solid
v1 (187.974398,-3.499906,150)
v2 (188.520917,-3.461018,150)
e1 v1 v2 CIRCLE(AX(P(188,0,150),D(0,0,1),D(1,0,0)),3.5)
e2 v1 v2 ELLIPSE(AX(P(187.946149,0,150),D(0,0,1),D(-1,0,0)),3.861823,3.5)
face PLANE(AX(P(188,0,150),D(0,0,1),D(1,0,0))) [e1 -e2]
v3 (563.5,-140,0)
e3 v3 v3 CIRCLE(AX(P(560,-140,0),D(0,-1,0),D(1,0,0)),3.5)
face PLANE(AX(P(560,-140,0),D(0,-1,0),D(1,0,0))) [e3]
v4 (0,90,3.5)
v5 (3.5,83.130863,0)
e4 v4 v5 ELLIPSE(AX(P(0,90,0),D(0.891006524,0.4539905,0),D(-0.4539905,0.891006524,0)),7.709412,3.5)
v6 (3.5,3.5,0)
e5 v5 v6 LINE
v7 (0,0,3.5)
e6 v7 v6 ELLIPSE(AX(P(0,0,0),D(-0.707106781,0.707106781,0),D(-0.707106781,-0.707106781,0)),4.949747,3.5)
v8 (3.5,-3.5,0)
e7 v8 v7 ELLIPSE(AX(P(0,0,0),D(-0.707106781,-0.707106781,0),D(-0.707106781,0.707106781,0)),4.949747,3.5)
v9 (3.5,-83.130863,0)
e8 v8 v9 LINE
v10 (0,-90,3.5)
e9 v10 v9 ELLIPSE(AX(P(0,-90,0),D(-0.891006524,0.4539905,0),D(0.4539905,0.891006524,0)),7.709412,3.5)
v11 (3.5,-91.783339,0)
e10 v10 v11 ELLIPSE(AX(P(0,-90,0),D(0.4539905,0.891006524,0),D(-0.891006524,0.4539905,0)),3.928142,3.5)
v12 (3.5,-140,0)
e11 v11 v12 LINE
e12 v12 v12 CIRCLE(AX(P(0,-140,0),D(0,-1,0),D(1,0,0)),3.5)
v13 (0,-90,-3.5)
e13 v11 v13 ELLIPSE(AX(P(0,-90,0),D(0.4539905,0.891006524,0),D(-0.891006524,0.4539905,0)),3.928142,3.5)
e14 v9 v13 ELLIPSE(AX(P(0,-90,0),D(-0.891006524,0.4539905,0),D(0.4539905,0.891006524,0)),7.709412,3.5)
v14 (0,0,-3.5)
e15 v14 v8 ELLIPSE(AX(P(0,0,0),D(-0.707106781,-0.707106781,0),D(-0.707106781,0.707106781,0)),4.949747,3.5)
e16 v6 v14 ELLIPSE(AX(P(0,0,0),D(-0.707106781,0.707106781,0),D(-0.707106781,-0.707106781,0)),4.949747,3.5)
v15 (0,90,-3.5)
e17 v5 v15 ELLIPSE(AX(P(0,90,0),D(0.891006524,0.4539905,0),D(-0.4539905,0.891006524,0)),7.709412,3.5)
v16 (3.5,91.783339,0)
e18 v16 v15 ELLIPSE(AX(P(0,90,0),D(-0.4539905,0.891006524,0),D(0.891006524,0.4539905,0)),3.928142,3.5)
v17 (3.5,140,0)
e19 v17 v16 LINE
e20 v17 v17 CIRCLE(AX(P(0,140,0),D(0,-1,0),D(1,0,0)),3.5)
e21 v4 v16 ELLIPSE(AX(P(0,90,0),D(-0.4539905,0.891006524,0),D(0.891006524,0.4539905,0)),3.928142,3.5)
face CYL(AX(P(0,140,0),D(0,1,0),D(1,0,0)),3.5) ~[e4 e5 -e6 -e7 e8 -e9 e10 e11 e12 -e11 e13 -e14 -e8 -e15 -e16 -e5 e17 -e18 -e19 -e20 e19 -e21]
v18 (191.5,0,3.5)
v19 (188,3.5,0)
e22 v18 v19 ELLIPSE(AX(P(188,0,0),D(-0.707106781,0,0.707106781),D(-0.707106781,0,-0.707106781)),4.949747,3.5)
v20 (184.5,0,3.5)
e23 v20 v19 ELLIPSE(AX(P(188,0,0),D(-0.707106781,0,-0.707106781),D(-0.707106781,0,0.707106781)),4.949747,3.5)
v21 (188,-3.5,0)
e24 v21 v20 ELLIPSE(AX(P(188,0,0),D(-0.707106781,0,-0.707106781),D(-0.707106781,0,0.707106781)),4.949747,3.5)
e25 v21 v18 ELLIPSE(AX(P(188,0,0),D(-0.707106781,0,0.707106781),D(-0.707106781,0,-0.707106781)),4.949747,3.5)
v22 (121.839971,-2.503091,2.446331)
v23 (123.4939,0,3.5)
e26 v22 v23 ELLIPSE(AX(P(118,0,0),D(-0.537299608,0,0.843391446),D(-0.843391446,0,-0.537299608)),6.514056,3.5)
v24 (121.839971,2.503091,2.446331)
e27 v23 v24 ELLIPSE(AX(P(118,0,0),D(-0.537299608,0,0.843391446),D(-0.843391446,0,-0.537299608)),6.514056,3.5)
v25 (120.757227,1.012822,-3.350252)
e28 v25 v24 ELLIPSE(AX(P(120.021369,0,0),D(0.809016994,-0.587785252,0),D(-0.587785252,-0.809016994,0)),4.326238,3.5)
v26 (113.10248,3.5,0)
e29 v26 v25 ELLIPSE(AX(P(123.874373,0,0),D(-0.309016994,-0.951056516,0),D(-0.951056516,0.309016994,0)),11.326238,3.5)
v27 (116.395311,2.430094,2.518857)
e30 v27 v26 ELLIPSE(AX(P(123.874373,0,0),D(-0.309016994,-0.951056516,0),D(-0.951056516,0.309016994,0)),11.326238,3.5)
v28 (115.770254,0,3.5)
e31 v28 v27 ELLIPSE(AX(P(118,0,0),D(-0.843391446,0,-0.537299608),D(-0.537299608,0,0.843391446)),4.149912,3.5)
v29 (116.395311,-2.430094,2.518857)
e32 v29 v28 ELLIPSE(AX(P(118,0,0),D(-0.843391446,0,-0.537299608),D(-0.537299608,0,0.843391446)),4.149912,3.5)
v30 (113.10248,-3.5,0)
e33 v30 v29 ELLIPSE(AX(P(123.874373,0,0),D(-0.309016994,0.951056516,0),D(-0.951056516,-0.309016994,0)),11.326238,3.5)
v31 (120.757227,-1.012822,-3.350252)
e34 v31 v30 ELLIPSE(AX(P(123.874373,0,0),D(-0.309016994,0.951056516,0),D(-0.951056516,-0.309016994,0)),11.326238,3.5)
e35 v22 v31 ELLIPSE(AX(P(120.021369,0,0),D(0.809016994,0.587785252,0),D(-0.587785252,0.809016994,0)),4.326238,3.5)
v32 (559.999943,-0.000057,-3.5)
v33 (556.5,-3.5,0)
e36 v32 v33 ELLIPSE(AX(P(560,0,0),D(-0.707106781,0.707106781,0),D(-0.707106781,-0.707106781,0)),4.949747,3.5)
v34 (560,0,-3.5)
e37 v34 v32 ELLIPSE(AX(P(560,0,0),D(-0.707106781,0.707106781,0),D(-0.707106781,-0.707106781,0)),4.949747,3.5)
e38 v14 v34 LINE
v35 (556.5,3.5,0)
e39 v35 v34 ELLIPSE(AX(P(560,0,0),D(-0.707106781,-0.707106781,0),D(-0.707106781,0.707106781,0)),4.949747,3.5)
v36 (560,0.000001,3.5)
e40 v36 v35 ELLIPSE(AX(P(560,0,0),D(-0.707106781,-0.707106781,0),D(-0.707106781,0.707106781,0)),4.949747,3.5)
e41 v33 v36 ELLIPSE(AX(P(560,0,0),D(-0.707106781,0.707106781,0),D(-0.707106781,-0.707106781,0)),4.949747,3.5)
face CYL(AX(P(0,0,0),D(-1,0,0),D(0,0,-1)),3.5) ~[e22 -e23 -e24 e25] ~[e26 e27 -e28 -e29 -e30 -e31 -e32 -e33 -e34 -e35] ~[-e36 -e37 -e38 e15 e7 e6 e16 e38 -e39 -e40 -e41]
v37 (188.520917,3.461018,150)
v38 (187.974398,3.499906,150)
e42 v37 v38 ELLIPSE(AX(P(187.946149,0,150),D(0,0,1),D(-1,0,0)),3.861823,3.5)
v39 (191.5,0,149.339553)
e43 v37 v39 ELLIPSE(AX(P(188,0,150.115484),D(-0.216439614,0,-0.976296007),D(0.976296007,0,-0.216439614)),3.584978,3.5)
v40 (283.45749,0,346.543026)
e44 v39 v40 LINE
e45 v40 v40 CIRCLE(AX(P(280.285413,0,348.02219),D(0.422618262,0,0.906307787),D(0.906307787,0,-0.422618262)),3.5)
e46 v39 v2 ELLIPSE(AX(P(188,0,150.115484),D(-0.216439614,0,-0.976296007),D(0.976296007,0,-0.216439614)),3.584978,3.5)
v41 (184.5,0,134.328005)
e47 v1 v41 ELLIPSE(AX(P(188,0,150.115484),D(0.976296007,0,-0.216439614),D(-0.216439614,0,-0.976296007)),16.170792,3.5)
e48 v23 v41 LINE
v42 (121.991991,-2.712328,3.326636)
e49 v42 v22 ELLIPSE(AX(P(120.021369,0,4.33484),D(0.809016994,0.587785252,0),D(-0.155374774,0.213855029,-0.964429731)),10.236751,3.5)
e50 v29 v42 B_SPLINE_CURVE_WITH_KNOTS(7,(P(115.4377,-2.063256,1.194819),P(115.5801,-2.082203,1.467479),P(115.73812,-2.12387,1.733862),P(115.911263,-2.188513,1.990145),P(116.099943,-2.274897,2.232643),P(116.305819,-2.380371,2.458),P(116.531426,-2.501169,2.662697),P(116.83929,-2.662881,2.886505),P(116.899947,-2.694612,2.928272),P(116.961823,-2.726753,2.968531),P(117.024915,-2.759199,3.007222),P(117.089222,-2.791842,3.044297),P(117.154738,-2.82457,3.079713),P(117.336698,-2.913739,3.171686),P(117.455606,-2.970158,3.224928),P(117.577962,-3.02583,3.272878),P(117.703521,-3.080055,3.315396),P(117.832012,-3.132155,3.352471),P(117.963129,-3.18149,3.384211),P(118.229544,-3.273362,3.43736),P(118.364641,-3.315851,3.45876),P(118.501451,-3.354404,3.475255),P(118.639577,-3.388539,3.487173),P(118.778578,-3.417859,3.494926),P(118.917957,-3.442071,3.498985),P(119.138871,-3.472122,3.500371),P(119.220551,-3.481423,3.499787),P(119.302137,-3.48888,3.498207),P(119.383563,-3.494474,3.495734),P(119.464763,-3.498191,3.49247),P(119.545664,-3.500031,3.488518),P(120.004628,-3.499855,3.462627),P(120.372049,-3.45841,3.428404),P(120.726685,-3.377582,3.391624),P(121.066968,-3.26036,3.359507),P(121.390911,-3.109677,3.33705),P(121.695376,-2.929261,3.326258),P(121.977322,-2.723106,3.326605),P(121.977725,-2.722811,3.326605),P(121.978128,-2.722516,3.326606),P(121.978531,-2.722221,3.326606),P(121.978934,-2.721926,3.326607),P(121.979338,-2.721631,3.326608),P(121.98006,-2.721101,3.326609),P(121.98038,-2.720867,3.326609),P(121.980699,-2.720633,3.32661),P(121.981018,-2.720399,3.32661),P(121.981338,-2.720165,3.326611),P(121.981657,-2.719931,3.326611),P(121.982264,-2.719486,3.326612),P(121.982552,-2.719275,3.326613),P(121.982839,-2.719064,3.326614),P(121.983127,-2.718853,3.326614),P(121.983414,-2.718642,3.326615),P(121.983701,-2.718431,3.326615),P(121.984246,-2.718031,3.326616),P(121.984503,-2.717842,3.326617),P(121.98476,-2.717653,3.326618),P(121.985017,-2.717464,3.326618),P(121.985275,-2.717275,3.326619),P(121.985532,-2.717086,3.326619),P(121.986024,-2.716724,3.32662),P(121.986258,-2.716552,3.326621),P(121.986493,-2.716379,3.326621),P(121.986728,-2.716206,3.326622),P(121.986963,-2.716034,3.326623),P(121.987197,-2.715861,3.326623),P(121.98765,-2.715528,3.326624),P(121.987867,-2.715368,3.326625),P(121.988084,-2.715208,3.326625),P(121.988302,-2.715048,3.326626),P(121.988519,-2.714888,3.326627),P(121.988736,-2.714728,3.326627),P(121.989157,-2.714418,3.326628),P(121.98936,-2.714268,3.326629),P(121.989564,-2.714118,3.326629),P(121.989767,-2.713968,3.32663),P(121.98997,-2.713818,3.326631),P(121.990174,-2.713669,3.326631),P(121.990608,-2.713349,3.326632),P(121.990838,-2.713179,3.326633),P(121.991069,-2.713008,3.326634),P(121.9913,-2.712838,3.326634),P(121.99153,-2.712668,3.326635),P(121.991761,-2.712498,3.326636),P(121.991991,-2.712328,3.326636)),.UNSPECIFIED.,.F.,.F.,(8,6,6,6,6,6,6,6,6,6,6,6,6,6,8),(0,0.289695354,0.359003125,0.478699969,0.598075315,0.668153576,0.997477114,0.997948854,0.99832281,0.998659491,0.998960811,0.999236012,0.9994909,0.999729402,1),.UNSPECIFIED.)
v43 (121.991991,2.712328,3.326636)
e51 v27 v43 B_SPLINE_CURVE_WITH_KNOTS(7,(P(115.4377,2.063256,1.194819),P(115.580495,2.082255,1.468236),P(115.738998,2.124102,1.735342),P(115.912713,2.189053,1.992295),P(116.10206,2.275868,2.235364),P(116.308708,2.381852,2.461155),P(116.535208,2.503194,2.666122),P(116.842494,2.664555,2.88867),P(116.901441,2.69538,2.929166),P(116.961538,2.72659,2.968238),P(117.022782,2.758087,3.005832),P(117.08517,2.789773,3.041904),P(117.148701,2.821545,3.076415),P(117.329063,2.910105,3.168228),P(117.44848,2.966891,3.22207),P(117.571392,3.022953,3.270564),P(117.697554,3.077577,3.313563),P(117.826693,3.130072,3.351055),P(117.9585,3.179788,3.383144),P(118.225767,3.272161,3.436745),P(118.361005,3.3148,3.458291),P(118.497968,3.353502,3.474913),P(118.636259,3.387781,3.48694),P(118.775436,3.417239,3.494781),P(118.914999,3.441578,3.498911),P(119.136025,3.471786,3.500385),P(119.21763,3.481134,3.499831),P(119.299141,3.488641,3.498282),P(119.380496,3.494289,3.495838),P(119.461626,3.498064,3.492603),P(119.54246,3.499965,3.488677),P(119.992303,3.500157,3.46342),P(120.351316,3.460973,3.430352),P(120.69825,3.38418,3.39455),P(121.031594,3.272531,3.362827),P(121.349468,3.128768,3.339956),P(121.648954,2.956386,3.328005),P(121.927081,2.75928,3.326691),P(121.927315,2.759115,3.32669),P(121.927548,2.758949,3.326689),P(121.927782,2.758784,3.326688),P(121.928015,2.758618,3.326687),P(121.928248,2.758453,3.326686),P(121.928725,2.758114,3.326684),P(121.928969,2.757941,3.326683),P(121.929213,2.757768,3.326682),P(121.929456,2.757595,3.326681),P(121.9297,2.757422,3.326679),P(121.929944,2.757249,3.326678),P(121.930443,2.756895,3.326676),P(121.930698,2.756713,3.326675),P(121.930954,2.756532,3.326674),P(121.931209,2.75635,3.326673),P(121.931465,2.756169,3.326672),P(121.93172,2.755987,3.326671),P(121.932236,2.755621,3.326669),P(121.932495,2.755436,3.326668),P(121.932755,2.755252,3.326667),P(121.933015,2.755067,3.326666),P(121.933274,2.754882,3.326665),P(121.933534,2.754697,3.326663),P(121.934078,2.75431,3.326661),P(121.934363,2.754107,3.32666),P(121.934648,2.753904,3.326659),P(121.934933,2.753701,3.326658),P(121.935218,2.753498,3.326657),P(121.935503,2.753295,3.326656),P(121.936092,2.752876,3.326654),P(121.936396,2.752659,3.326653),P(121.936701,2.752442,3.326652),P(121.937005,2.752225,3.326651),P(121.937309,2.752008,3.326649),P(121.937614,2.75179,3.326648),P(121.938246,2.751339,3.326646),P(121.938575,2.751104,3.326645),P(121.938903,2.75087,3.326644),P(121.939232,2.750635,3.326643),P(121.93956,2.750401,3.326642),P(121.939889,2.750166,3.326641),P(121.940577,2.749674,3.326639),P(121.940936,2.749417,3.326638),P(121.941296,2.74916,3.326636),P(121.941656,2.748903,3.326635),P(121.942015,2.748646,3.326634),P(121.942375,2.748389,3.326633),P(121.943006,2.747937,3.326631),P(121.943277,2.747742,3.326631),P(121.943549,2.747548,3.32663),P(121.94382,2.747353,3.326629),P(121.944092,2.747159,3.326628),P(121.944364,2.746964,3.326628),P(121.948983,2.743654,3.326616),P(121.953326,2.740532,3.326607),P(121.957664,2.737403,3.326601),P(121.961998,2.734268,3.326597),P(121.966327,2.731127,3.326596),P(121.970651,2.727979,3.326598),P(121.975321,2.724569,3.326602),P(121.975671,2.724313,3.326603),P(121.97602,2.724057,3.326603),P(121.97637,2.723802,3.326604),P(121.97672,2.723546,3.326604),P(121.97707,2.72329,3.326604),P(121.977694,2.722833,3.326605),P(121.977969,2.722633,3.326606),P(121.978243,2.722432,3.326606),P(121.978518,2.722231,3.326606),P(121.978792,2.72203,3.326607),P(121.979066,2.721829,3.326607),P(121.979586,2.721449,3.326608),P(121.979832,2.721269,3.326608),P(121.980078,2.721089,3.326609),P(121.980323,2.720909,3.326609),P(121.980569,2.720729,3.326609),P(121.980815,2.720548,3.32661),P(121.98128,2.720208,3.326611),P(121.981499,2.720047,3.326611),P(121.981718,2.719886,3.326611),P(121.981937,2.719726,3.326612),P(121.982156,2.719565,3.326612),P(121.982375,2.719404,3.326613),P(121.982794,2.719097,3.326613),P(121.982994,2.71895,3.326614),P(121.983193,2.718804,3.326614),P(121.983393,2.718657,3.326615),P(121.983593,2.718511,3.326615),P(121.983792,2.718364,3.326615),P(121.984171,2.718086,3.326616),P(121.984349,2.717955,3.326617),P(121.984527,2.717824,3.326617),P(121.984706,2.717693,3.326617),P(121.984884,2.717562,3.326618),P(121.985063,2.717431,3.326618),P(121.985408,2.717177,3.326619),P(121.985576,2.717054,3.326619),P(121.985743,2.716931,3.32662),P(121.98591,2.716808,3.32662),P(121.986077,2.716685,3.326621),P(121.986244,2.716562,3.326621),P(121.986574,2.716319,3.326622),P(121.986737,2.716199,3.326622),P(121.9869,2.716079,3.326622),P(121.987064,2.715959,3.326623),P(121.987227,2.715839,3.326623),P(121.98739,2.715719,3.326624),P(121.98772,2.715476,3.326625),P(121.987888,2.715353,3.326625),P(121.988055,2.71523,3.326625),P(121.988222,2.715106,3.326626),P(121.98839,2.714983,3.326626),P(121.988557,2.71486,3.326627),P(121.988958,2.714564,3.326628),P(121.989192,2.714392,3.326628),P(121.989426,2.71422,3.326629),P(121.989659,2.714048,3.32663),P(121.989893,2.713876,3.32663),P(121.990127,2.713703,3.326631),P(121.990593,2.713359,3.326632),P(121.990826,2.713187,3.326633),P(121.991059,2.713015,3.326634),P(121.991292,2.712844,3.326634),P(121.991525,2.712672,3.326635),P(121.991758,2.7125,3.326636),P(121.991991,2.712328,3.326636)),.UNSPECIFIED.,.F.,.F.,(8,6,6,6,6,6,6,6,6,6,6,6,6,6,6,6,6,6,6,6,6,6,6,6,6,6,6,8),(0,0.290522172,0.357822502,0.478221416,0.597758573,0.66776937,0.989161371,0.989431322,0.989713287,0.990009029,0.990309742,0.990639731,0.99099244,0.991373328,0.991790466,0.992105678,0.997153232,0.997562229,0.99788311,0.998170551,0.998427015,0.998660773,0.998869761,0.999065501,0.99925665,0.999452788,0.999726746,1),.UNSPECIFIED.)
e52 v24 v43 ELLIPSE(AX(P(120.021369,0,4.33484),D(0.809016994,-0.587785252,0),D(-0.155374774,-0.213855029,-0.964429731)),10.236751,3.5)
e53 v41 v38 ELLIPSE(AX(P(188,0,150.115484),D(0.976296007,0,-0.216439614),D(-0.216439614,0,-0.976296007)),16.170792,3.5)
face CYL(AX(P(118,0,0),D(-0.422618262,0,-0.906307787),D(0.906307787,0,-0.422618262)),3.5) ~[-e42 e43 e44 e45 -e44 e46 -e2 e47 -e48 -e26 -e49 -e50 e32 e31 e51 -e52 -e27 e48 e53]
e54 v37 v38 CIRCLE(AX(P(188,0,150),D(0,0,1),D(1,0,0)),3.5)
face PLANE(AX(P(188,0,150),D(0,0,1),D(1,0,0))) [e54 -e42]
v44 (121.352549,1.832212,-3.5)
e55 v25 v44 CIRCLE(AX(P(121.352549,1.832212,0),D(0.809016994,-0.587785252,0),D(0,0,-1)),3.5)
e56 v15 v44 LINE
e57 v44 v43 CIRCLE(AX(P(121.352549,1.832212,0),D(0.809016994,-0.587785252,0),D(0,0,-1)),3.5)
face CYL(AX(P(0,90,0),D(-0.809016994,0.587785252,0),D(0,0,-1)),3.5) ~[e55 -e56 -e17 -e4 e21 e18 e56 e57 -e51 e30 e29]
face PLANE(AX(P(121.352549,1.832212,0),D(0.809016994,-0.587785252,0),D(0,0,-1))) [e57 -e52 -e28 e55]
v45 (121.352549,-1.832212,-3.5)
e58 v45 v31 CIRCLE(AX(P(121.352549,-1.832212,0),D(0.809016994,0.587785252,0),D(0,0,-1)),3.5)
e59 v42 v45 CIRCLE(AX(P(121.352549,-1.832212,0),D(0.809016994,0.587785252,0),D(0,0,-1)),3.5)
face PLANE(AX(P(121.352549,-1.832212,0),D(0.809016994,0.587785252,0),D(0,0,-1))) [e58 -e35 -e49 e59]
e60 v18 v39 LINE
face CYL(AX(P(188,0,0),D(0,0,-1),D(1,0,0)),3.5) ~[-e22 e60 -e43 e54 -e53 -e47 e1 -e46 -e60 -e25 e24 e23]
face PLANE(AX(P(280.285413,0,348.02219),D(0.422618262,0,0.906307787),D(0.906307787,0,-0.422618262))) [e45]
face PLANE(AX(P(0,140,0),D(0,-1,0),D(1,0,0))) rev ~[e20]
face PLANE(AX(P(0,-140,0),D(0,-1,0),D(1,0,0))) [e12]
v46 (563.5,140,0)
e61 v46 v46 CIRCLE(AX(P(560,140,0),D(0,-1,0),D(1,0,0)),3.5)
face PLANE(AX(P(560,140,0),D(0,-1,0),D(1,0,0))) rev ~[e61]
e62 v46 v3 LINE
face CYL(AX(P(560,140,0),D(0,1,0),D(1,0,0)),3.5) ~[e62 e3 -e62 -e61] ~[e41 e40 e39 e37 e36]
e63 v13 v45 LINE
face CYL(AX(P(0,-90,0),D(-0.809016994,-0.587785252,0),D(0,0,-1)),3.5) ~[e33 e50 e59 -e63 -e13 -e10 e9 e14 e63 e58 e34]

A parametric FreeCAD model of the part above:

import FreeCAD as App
import Part
import Sketcher
from FreeCAD import Vector
Q = App.Units.Quantity

doc = App.newDocument("Part")
params = doc.addObject("Spreadsheet::Sheet", "Params")
for row, (alias, value) in enumerate([
    ("sketch1_diameter", "7 mm"),
    ("pad1_length", "280 mm"),
    ("sketch2_diameter", "7 mm"),
    ("pad2_length", "150 mm"),
    ("sketch3_diameter", "7 mm"),
    ("pad3_length", "280 mm"),
    ("sketch4_diameter", "7 mm"),
    ("pad4_length", "150 mm"),
    ("sketch5_diameter", "7 mm"),
    ("pad5_length", "150 mm"),
    ("sketch6_diameter", "7 mm"),
    ("pad6_length", "384 mm"),
    ("sketch7_diameter", "7 mm"),
    ("pad7_length", "560 mm"),
], start=1):
    params.set(f"A{row}", alias)
    params.set(f"B{row}", "=" + value)
    params.setAlias(f"B{row}", alias)

body = doc.addObject("PartDesign::Body", "Body")

# Sketch on XY plane
sketch1 = body.newObject("Sketcher::SketchObject", "Sketch")
sketch1.AttachmentSupport = (doc.getObject("XY_Plane"), [""])
sketch1.MapMode = "FlatFace"
sketch1.addGeometry(Part.Circle(Vector(0, 0, 0), Vector(0, 0, 1), 3.5), False)
sketch1.addConstraint([
    Sketcher.Constraint("Coincident", 0, 3, -1, 1),
    Sketcher.Constraint("Diameter", 0, Q("7 mm")),
])
sketch1.setExpression("Constraints[1]", "Params.sketch1_diameter")
pad1 = body.newObject("PartDesign::Pad", "Pad")
pad1.Profile = sketch1
pad1.setExpression("Length", "Params.pad1_length")
body2 = doc.addObject("PartDesign::Body", "Body001")
doc.recompute()

body.Placement = App.Placement(Vector(0, 0, 0), App.Rotation(Vector(1, 0, 0), 90))
boolean = body2.newObject("PartDesign::Boolean", "Boolean")
boolean.Type = "Fuse"
boolean.addObjects([body])
body3 = doc.addObject("PartDesign::Body", "Body002")
doc.recompute()

body2.Placement = App.Placement(Vector(0, 140, 0), App.Rotation(Vector(0, 0, 1), 0))
boolean2 = body3.newObject("PartDesign::Boolean", "Boolean001")
boolean2.Type = "Fuse"
boolean2.addObjects([body2])
body4 = doc.addObject("PartDesign::Body", "Body003")

# Sketch on XY plane
sketch2 = body4.newObject("Sketcher::SketchObject", "Sketch001")
sketch2.AttachmentSupport = (doc.getObject("XY_Plane003"), [""])
sketch2.MapMode = "FlatFace"
sketch2.addGeometry(Part.Circle(Vector(0, 0, 0), Vector(0, 0, 1), 3.5), False)
sketch2.addConstraint([
    Sketcher.Constraint("Coincident", 0, 3, -1, 1),
    Sketcher.Constraint("Diameter", 0, Q("7 mm")),
])
sketch2.setExpression("Constraints[1]", "Params.sketch2_diameter")
pad2 = body4.newObject("PartDesign::Pad", "Pad001")
pad2.Profile = sketch2
pad2.setExpression("Length", "Params.pad2_length")
body5 = doc.addObject("PartDesign::Body", "Body004")
doc.recompute()

body4.Placement = App.Placement(Vector(0, 0, 0), App.Rotation(Vector(0, 1, 0), 90))
boolean3 = body5.newObject("PartDesign::Boolean", "Boolean002")
boolean3.Type = "Fuse"
boolean3.addObjects([body4])
body6 = doc.addObject("PartDesign::Body", "Body005")
doc.recompute()

body5.Placement = App.Placement(Vector(0, -90, 0), App.Rotation(Vector(0, 0, 1), 36))
boolean4 = body6.newObject("PartDesign::Boolean", "Boolean003")
boolean4.Type = "Fuse"
boolean4.addObjects([body5])
body7 = doc.addObject("PartDesign::Body", "Body006")

# Sketch on XY plane
sketch3 = body7.newObject("Sketcher::SketchObject", "Sketch002")
sketch3.AttachmentSupport = (doc.getObject("XY_Plane006"), [""])
sketch3.MapMode = "FlatFace"
sketch3.addGeometry(Part.Circle(Vector(0, 0, 0), Vector(0, 0, 1), 3.5), False)
sketch3.addConstraint([
    Sketcher.Constraint("Coincident", 0, 3, -1, 1),
    Sketcher.Constraint("Diameter", 0, Q("7 mm")),
])
sketch3.setExpression("Constraints[1]", "Params.sketch3_diameter")
pad3 = body7.newObject("PartDesign::Pad", "Pad002")
pad3.Profile = sketch3
pad3.setExpression("Length", "Params.pad3_length")
body8 = doc.addObject("PartDesign::Body", "Body007")
doc.recompute()

body7.Placement = App.Placement(Vector(0, 0, 0), App.Rotation(Vector(1, 0, 0), 90))
boolean5 = body8.newObject("PartDesign::Boolean", "Boolean004")
boolean5.Type = "Fuse"
boolean5.addObjects([body7])
body9 = doc.addObject("PartDesign::Body", "Body008")
doc.recompute()

body8.Placement = App.Placement(Vector(560, 140, 0), App.Rotation(Vector(0, 0, 1), 0))
boolean6 = body9.newObject("PartDesign::Boolean", "Boolean005")
boolean6.Type = "Fuse"
boolean6.addObjects([body8])
body10 = doc.addObject("PartDesign::Body", "Body009")

# Sketch on XY plane
sketch4 = body10.newObject("Sketcher::SketchObject", "Sketch003")
sketch4.AttachmentSupport = (doc.getObject("XY_Plane009"), [""])
sketch4.MapMode = "FlatFace"
sketch4.addGeometry(Part.Circle(Vector(0, 0, 0), Vector(0, 0, 1), 3.5), False)
sketch4.addConstraint([
    Sketcher.Constraint("Coincident", 0, 3, -1, 1),
    Sketcher.Constraint("Diameter", 0, Q("7 mm")),
])
sketch4.setExpression("Constraints[1]", "Params.sketch4_diameter")
pad4 = body10.newObject("PartDesign::Pad", "Pad003")
pad4.Profile = sketch4
pad4.setExpression("Length", "Params.pad4_length")
body11 = doc.addObject("PartDesign::Body", "Body010")
doc.recompute()

body10.Placement = App.Placement(Vector(0, 0, 0), App.Rotation(Vector(0, 1, 0), 90))
boolean7 = body11.newObject("PartDesign::Boolean", "Boolean006")
boolean7.Type = "Fuse"
boolean7.addObjects([body10])
body12 = doc.addObject("PartDesign::Body", "Body011")
doc.recompute()

body11.Placement = App.Placement(Vector(0, 90, 0), App.Rotation(Vector(0, 0, 1), 324))
boolean8 = body12.newObject("PartDesign::Boolean", "Boolean007")
boolean8.Type = "Fuse"
boolean8.addObjects([body11])
body13 = doc.addObject("PartDesign::Body", "Body012")

# Sketch on XY plane
sketch5 = body13.newObject("Sketcher::SketchObject", "Sketch004")
sketch5.AttachmentSupport = (doc.getObject("XY_Plane012"), [""])
sketch5.MapMode = "FlatFace"
sketch5.addGeometry(Part.Circle(Vector(188, 0, 0), Vector(0, 0, 1), 3.5), False)
sketch5.addConstraint([
    Sketcher.Constraint("PointOnObject", 0, 3, -1),
    Sketcher.Constraint("Diameter", 0, Q("7 mm")),
    Sketcher.Constraint("DistanceX", -1, 1, 0, 3, Q("188 mm")),
])
sketch5.setExpression("Constraints[1]", "Params.sketch5_diameter")
pad5 = body13.newObject("PartDesign::Pad", "Pad004")
pad5.Profile = sketch5
pad5.setExpression("Length", "Params.pad5_length")
body14 = doc.addObject("PartDesign::Body", "Body013")

# Sketch on XY plane
sketch6 = body14.newObject("Sketcher::SketchObject", "Sketch005")
sketch6.AttachmentSupport = (doc.getObject("XY_Plane013"), [""])
sketch6.MapMode = "FlatFace"
sketch6.addGeometry(Part.Circle(Vector(0, 0, 0), Vector(0, 0, 1), 3.5), False)
sketch6.addConstraint([
    Sketcher.Constraint("Coincident", 0, 3, -1, 1),
    Sketcher.Constraint("Diameter", 0, Q("7 mm")),
])
sketch6.setExpression("Constraints[1]", "Params.sketch6_diameter")
pad6 = body14.newObject("PartDesign::Pad", "Pad005")
pad6.Profile = sketch6
pad6.setExpression("Length", "Params.pad6_length")
body15 = doc.addObject("PartDesign::Body", "Body014")
doc.recompute()

body14.Placement = App.Placement(Vector(118, 0, 0), App.Rotation(Vector(0, 1, 0), 25))
boolean9 = body15.newObject("PartDesign::Boolean", "Boolean008")
boolean9.Type = "Fuse"
boolean9.addObjects([body14])
body16 = doc.addObject("PartDesign::Body", "Body015")

# Sketch on XY plane
sketch7 = body16.newObject("Sketcher::SketchObject", "Sketch006")
sketch7.AttachmentSupport = (doc.getObject("XY_Plane015"), [""])
sketch7.MapMode = "FlatFace"
sketch7.addGeometry(Part.Circle(Vector(0, 0, 0), Vector(0, 0, 1), 3.5), False)
sketch7.addConstraint([
    Sketcher.Constraint("Coincident", 0, 3, -1, 1),
    Sketcher.Constraint("Diameter", 0, Q("7 mm")),
])
sketch7.setExpression("Constraints[1]", "Params.sketch7_diameter")
pad7 = body16.newObject("PartDesign::Pad", "Pad006")
pad7.Profile = sketch7
pad7.setExpression("Length", "Params.pad7_length")
body17 = doc.addObject("PartDesign::Body", "Body016")
doc.recompute()

body16.Placement = App.Placement(Vector(0, 0, 0), App.Rotation(Vector(0, 1, 0), 90))
boolean10 = body17.newObject("PartDesign::Boolean", "Boolean009")
boolean10.Type = "Fuse"
boolean10.addObjects([body16])
doc.recompute()

boolean11 = body17.newObject("PartDesign::Boolean", "Boolean010")
boolean11.Type = "Fuse"
boolean11.addObjects([body3])
doc.recompute()

boolean12 = body17.newObject("PartDesign::Boolean", "Boolean011")
boolean12.Type = "Fuse"
boolean12.addObjects([body6])
doc.recompute()

boolean13 = body17.newObject("PartDesign::Boolean", "Boolean012")
boolean13.Type = "Fuse"
boolean13.addObjects([body9])
doc.recompute()

boolean14 = body17.newObject("PartDesign::Boolean", "Boolean013")
boolean14.Type = "Fuse"
boolean14.addObjects([body12])
doc.recompute()

boolean15 = body17.newObject("PartDesign::Boolean", "Boolean014")
boolean15.Type = "Fuse"
boolean15.addObjects([body13])
doc.recompute()

boolean16 = body17.newObject("PartDesign::Boolean", "Boolean015")
boolean16.Type = "Fuse"
boolean16.addObjects([body15])

doc.recompute()
